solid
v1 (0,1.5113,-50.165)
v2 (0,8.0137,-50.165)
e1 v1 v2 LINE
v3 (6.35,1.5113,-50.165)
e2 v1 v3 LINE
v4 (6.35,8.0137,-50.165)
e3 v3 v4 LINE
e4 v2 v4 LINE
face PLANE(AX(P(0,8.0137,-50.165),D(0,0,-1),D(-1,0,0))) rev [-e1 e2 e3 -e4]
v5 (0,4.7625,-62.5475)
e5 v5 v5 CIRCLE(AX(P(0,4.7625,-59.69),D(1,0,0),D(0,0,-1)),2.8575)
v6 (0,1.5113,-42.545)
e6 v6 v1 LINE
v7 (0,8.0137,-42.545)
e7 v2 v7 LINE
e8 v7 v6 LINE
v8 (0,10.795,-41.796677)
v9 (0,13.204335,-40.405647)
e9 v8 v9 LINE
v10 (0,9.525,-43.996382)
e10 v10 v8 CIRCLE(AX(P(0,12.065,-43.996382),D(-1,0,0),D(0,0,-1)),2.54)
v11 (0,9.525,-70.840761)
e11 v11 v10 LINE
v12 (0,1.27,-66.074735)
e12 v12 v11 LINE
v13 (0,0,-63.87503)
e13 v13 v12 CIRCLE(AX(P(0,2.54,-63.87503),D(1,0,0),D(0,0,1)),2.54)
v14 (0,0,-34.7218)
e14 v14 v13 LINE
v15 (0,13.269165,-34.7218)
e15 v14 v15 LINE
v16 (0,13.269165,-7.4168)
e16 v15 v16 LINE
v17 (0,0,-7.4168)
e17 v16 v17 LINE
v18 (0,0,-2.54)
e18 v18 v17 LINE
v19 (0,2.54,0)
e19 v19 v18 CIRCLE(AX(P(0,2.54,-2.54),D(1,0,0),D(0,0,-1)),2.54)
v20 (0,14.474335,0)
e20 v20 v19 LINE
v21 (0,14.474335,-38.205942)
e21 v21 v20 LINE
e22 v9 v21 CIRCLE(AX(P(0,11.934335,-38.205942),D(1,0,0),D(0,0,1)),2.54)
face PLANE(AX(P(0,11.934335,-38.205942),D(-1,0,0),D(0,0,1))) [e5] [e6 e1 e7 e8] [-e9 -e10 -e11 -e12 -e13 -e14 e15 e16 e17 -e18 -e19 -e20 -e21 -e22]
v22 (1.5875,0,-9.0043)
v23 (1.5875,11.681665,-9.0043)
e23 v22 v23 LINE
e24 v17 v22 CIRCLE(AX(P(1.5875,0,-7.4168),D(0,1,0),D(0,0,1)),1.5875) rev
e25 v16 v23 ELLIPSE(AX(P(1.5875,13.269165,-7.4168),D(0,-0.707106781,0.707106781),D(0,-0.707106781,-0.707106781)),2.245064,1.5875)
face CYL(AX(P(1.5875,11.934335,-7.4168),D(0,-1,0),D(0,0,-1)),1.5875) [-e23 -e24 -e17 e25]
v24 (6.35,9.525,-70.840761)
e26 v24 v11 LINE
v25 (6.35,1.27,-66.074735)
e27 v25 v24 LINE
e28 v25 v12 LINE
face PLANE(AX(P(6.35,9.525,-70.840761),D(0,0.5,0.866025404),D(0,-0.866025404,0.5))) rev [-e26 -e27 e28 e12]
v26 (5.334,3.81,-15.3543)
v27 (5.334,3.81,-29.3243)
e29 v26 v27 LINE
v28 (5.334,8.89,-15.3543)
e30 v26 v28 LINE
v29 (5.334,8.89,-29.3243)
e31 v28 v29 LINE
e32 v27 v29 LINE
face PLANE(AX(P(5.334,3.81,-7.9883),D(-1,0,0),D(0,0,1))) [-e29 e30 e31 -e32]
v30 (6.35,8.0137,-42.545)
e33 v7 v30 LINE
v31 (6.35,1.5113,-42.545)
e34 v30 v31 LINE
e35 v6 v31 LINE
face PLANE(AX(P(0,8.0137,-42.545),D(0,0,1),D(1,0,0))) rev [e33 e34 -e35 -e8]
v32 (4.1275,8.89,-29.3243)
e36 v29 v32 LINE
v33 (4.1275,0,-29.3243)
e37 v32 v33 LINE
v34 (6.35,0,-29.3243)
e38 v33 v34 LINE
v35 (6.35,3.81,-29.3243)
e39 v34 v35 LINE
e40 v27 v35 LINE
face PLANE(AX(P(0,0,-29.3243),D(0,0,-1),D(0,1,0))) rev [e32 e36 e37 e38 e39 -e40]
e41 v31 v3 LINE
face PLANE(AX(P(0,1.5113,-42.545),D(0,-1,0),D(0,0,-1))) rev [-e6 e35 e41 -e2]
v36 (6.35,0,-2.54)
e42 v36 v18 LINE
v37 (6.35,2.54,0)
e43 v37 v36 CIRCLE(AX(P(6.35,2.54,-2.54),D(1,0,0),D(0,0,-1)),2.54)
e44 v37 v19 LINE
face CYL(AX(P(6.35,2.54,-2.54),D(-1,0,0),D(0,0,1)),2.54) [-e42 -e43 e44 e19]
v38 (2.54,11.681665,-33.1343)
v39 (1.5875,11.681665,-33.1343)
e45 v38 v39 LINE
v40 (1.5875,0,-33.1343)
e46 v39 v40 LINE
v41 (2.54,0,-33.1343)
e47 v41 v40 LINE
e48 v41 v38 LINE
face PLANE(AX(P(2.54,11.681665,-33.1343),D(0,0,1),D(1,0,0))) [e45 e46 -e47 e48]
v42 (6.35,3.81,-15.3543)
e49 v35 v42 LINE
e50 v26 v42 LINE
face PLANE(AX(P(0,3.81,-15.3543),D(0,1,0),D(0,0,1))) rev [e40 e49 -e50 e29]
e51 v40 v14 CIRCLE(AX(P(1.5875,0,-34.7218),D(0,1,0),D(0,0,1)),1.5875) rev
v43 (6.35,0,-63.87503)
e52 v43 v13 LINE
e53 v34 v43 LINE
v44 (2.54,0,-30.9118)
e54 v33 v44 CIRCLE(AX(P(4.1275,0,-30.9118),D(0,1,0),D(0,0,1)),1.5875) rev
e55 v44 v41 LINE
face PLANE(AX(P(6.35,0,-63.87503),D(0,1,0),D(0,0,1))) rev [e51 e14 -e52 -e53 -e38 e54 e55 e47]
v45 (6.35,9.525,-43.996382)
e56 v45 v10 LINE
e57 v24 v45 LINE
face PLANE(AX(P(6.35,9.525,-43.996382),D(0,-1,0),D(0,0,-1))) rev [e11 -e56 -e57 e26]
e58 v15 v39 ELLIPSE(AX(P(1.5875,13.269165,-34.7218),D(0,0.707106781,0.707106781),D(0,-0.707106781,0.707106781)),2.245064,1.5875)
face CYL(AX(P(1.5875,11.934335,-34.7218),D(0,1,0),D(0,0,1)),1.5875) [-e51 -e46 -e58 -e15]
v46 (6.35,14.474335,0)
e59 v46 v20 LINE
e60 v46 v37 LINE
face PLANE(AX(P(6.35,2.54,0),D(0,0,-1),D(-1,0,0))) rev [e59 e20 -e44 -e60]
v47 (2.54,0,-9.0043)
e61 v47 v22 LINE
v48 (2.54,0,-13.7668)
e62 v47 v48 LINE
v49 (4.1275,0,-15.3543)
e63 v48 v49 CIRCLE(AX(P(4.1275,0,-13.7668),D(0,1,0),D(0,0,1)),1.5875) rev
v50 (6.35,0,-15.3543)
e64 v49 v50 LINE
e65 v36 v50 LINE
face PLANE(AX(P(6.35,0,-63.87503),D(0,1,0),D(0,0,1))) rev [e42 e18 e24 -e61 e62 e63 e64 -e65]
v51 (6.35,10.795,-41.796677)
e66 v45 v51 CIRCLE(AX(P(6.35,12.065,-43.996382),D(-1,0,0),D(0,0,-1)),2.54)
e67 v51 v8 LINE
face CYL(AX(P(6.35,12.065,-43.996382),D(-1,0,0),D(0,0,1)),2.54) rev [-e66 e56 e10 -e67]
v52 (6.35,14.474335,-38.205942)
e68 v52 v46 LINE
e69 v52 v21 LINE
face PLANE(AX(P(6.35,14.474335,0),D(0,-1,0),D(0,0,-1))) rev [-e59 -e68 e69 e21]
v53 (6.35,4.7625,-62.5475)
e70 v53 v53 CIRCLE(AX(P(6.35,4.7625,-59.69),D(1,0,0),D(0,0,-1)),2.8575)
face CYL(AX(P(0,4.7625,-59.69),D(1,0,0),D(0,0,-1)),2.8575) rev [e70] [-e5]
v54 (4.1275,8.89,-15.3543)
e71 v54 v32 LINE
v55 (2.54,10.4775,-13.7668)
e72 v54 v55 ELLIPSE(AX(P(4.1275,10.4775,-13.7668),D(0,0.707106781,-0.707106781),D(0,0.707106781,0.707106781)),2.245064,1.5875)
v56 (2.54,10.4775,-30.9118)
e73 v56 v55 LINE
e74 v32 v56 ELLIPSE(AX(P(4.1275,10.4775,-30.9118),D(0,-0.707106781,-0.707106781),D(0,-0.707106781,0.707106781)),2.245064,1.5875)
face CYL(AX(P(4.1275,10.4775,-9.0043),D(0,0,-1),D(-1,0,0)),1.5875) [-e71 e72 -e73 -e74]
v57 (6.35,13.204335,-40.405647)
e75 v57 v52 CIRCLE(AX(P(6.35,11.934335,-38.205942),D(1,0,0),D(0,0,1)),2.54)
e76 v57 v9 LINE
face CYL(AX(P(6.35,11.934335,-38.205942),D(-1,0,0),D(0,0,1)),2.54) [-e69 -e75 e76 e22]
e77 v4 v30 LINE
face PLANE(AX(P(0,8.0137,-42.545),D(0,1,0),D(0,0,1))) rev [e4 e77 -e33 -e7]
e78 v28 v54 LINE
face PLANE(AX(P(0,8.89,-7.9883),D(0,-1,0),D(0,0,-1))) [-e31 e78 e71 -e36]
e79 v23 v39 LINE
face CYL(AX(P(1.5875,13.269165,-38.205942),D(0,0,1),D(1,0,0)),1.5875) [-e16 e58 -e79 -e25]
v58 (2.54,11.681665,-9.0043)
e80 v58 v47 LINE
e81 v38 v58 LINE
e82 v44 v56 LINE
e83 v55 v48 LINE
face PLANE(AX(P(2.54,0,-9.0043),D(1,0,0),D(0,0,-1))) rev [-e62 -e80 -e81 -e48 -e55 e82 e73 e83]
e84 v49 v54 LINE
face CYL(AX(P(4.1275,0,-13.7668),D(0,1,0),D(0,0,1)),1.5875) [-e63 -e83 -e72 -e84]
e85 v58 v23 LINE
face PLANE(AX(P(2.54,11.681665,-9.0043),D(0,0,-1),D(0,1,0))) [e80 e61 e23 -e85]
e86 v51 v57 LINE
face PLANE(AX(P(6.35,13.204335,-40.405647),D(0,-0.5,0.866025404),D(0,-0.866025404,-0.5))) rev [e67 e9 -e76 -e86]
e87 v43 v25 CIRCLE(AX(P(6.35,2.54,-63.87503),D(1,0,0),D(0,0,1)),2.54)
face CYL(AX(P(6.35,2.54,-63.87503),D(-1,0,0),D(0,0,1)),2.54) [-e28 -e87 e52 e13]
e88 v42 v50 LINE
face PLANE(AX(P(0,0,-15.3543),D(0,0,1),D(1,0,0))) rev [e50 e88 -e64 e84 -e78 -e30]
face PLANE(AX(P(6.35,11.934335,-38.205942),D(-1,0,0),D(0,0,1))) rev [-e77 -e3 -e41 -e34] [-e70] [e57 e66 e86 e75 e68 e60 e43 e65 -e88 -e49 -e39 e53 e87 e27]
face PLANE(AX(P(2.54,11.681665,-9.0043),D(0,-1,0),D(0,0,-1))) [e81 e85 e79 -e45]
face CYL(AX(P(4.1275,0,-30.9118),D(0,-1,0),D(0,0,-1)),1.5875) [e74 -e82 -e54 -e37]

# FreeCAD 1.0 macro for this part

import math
import FreeCAD as App
import Part
import Sketcher
Q = App.Units.Quantity


def edges_at(feature, points):
    """Names of the edges that pass closest to the given points."""
    edges = feature.Shape.Edges
    near = lambda p: min(range(len(edges)), key=lambda i: edges[i].distToShape(Part.Vertex(*p))[0])
    return sorted({f"Edge{near(p) + 1}" for p in points})


def add_polygon(sketch, points):
    """Adds a closed chain of lines whose ends are joined by coincident constraints."""
    first, n = sketch.GeometryCount, len(points)
    for a, b in zip(points, points[1:] + points[:1]):
        sketch.addGeometry(Part.LineSegment(App.Vector(*a, 0), App.Vector(*b, 0)), False)
    for i in range(n):
        sketch.addConstraint(Sketcher.Constraint("Coincident", first + i, 2, first + (i + 1) % n, 1))

doc = App.newDocument("Part")
params = doc.addObject("Spreadsheet::Sheet", "Params")
for row, (alias, value) in enumerate([
    ("sketch1_radius", "0.1 in"),
    ("pad1_length", "0.25 in"),
    ("sketch2_diameter", "0.225 in"),
    ("sketch2_height", "0.3 in"),
    ("sketch2_width", "0.15 in"),
    ("sketch2_height2", "0.55 in"),
    ("sketch2_width2", "0.256 in"),
    ("sketch3_height", "0.2 in"),
    ("sketch3_width", "0.21 in"),
    ("pocket2_length", "0.55 in"),
    ("sketch4_height", "0.95 in"),
    ("pocket3_length", "0.1 in"),
    ("fillet_radius", "0.0625 in"),
], start=1):
    params.set(f"A{row}", alias)
    params.set(f"B{row}", "=" + value)
    params.setAlias(f"B{row}", alias)

body = doc.addObject("PartDesign::Body", "Body")

sketch1 = doc.addObject("Sketcher::SketchObject", "Sketch")
body.addObject(sketch1)
sketch1.AttachmentSupport = (doc.YZ_Plane, [""])
sketch1.MapMode = "FlatFace"
sketch1.addGeometry([
    Part.LineSegment(App.Vector(14.5, 0, 0), App.Vector(2.5, 0, 0)),
    Part.ArcOfCircle(Part.Circle(App.Vector(2.5, -2.5, 0), App.Vector(0, 0, 1), 2.5), math.radians(90), math.radians(180)),
    Part.LineSegment(App.Vector(0, -2.5, 0), App.Vector(0, -63.9, 0)),
    Part.ArcOfCircle(Part.Circle(App.Vector(2.5, -63.9, 0), App.Vector(0, 0, 1), 2.5), math.radians(180), math.radians(240)),
    Part.LineSegment(App.Vector(1.3, -66.1, 0), App.Vector(9.5, -70.8, 0)),
    Part.LineSegment(App.Vector(9.5, -70.8, 0), App.Vector(9.5, -44, 0)),
    Part.ArcOfCircle(Part.Circle(App.Vector(12.1, -44, 0), App.Vector(0, 0, 1), 2.5), math.radians(120), math.radians(180)),
    Part.LineSegment(App.Vector(10.8, -41.8, 0), App.Vector(13.2, -40.4, 0)),
    Part.ArcOfCircle(Part.Circle(App.Vector(11.9, -38.2, 0), App.Vector(0, 0, 1), 2.5), math.radians(-60), math.radians(0)),
    Part.LineSegment(App.Vector(14.5, -38.2, 0), App.Vector(14.5, 0, 0)),
], False)
sketch1.addConstraint([
    Sketcher.Constraint("Tangent", 0, 2, 1, 1),
    Sketcher.Constraint("Tangent", 1, 2, 2, 1),
    Sketcher.Constraint("Tangent", 2, 2, 3, 1),
    Sketcher.Constraint("Tangent", 3, 2, 4, 1),
    Sketcher.Constraint("Coincident", 4, 2, 5, 1),
    Sketcher.Constraint("Tangent", 5, 2, 6, 2),
    Sketcher.Constraint("Tangent", 6, 1, 7, 1),
    Sketcher.Constraint("Tangent", 7, 2, 8, 1),
    Sketcher.Constraint("Tangent", 8, 2, 9, 1),
    Sketcher.Constraint("Coincident", 9, 2, 0, 1),
    Sketcher.Constraint("Horizontal", 0),
    Sketcher.Constraint("Vertical", 2),
    Sketcher.Constraint("Vertical", 5),
    Sketcher.Constraint("Vertical", 9),
    Sketcher.Constraint("Equal", 1, 3),
    Sketcher.Constraint("Equal", 3, 6),
    Sketcher.Constraint("Equal", 6, 8),
    Sketcher.Constraint("PointOnObject", 0, 2, -1),
    Sketcher.Constraint("PointOnObject", 1, 2, -2),
    Sketcher.Constraint("Radius", 1, Q("0.1 in")),
    Sketcher.Constraint("Angle", 4, Q("-30 deg")),
    Sketcher.Constraint("Angle", 7, Q("30 deg")),
    Sketcher.Constraint("DistanceX", -1, 1, 6, 3, Q("0.475 in")),
    Sketcher.Constraint("DistanceY", 2, 2, 2, 1, 61.33503),
    Sketcher.Constraint("DistanceY", 5, 1, 5, 2, 26.84438),
    Sketcher.Constraint("Distance", 7, 2.782061),
])
sketch1.setExpression("Constraints[19]", "Params.sketch1_radius")
pad1 = doc.addObject("PartDesign::Pad", "Pad")
body.addObject(pad1)
pad1.Profile = sketch1
pad1.setExpression("Length", "Params.pad1_length")

sketch2 = doc.addObject("Sketcher::SketchObject", "Sketch001")
body.addObject(sketch2)
sketch2.AttachmentSupport = (doc.YZ_Plane, [""])
sketch2.MapMode = "FlatFace"
sketch2.AttachmentOffset = App.Placement(App.Vector(0, 0, 0.25 * 25.4), App.Rotation())
sketch2.addGeometry(Part.Circle(App.Vector(4.8, -59.7, 0), App.Vector(0, 0, 1), 2.9), False)
add_polygon(sketch2, [(8, -42.5), (1.5, -42.5), (1.5, -50.2), (8, -50.2)])
add_polygon(sketch2, [(3.8, -15.4), (0, -15.4), (0, -29.3), (3.8, -29.3)])
sketch2.addConstraint([
    Sketcher.Constraint("Horizontal", 1),
    Sketcher.Constraint("Vertical", 2),
    Sketcher.Constraint("Horizontal", 3),
    Sketcher.Constraint("Vertical", 4),
    Sketcher.Constraint("Horizontal", 5),
    Sketcher.Constraint("Vertical", 6),
    Sketcher.Constraint("Horizontal", 7),
    Sketcher.Constraint("Vertical", 8),
    Sketcher.Constraint("PointOnObject", 5, 2, -2),
    Sketcher.Constraint("Diameter", 0, Q("0.225 in")),
    Sketcher.Constraint("DistanceY", 2, 2, 2, 1, Q("0.3 in")),
    Sketcher.Constraint("DistanceX", 5, 2, 5, 1, Q("0.15 in")),
    Sketcher.Constraint("DistanceY", 6, 2, 6, 1, Q("0.55 in")),
    Sketcher.Constraint("DistanceX", 1, 2, 1, 1, Q("0.256 in")),
    Sketcher.Constraint("DistanceY", 0, 3, -1, 1, Q("2.35 in")),
    Sketcher.Constraint("DistanceX", -1, 1, 0, 3, Q("0.1875 in")),
    Sketcher.Constraint("DistanceY", 1, 2, -1, 1, Q("1.675 in")),
    Sketcher.Constraint("DistanceX", 1, 2, 0, 3, Q("0.128 in")),
    Sketcher.Constraint("DistanceY", 5, 2, -1, 1, Q("0.6045 in")),
])
sketch2.setExpression("Constraints[17]", "Params.sketch2_diameter")
sketch2.setExpression("Constraints[18]", "Params.sketch2_height")
sketch2.setExpression("Constraints[19]", "Params.sketch2_width")
sketch2.setExpression("Constraints[20]", "Params.sketch2_height2")
sketch2.setExpression("Constraints[21]", "Params.sketch2_width2")
pocket1 = doc.addObject("PartDesign::Pocket", "Pocket")
body.addObject(pocket1)
pocket1.Profile = sketch2
pocket1.Type = "ThroughAll"

sketch3 = doc.addObject("Sketcher::SketchObject", "Sketch002")
body.addObject(sketch3)
sketch3.AttachmentSupport = (doc.XY_Plane, [""])
sketch3.MapMode = "FlatFace"
sketch3.AttachmentOffset = App.Placement(App.Vector(0, 0, -1.1545 * 25.4), App.Rotation())
add_polygon(sketch3, [(0, 9), (0, 4), (5, 4), (5, 9)])
sketch3.addConstraint([
    Sketcher.Constraint("Vertical", 0),
    Sketcher.Constraint("Horizontal", 1),
    Sketcher.Constraint("Vertical", 2),
    Sketcher.Constraint("Horizontal", 3),
    Sketcher.Constraint("PointOnObject", 0, 2, -2),
    Sketcher.Constraint("DistanceY", 0, 2, 0, 1, Q("0.2 in")),
    Sketcher.Constraint("DistanceX", 1, 1, 1, 2, Q("0.21 in")),
    Sketcher.Constraint("DistanceY", -1, 1, 0, 2, Q("0.15 in")),
])
sketch3.setExpression("Constraints[9]", "Params.sketch3_height")
sketch3.setExpression("Constraints[10]", "Params.sketch3_width")
pocket2 = doc.addObject("PartDesign::Pocket", "Pocket001")
body.addObject(pocket2)
pocket2.Profile = sketch3
pocket2.setExpression("Length", "Params.pocket2_length")
pocket2.Reversed = True

sketch4 = doc.addObject("Sketcher::SketchObject", "Sketch003")
body.addObject(sketch4)
sketch4.AttachmentSupport = (doc.YZ_Plane, [""])
sketch4.MapMode = "FlatFace"
add_polygon(sketch4, [(12, -9), (0, -9), (0, -33), (12, -33)])
sketch4.addConstraint([
    Sketcher.Constraint("Horizontal", 0),
    Sketcher.Constraint("Vertical", 1),
    Sketcher.Constraint("Horizontal", 2),
    Sketcher.Constraint("Vertical", 3),
    Sketcher.Constraint("PointOnObject", 0, 2, -2),
    Sketcher.Constraint("DistanceY", 1, 2, 1, 1, Q("0.95 in")),
    Sketcher.Constraint("DistanceY", 0, 2, -1, 1, Q("0.3545 in")),
    Sketcher.Constraint("DistanceX", 0, 2, 0, 1, 11.681665),
])
sketch4.setExpression("Constraints[9]", "Params.sketch4_height")
pocket3 = doc.addObject("PartDesign::Pocket", "Pocket002")
body.addObject(pocket3)
pocket3.Profile = sketch4
pocket3.setExpression("Length", "Params.pocket3_length")
pocket3.Reversed = True
doc.recompute()

fillet = doc.addObject("PartDesign::Fillet", "Fillet")
body.addObject(fillet)
fillet.Base = (pocket3, edges_at(pocket3, [
    (2.54, 8.89, -22.339),
    (2.54, 4.445, -15.354),
    (2.54, 4.445, -29.324),
    (0, 5.841, -9.004),
    (0, 5.841, -33.134),
    (0, 11.682, -21.069),
]))
fillet.setExpression("Radius", "Params.fillet_radius")

doc.recompute()
